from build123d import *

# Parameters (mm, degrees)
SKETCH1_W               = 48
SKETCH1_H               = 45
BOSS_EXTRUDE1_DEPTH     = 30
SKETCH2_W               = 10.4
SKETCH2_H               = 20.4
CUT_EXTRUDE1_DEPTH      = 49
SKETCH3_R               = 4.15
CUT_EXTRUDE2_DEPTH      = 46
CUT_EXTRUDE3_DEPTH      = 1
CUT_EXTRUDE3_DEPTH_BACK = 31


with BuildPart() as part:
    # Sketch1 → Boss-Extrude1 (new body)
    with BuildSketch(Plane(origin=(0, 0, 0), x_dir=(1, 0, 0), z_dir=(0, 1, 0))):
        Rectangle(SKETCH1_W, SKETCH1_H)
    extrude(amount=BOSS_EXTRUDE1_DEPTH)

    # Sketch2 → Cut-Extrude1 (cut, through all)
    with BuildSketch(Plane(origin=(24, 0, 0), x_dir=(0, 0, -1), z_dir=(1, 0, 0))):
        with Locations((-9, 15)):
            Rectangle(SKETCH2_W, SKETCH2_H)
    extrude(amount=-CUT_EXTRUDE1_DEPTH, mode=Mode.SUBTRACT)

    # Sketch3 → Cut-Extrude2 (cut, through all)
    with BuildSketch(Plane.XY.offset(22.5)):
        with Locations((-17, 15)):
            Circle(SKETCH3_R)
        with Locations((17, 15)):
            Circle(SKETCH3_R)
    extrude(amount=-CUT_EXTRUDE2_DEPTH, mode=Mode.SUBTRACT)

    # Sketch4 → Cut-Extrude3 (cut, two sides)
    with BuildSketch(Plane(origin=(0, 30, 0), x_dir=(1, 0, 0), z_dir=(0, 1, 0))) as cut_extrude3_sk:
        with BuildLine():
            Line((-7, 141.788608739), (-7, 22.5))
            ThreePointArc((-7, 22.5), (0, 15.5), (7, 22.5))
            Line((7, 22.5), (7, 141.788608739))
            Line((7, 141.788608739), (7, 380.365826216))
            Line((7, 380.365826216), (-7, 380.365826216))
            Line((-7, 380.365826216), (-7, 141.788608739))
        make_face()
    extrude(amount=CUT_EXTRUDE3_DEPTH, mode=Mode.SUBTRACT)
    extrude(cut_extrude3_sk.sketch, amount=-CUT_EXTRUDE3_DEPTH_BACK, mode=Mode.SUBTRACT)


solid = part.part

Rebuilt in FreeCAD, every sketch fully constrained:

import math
import FreeCAD as App
import Part
import Sketcher

V = App.Vector
Q = App.Units.Quantity


def add_polygon(sketch, points):
    """Adds a closed chain of lines whose ends are joined by coincident constraints."""
    first, n = sketch.GeometryCount, len(points)
    for a, b in zip(points, points[1:] + points[:1]):
        sketch.addGeometry(Part.LineSegment(App.Vector(*a, 0), App.Vector(*b, 0)), False)
    for i in range(n):
        sketch.addConstraint(Sketcher.Constraint("Coincident", first + i, 2, first + (i + 1) % n, 1))

doc = App.newDocument("Part")
params = doc.addObject("Spreadsheet::Sheet", "Params")
for row, (alias, value) in enumerate([
    ("sketch1_width", "48 mm"),
    ("sketch1_height", "45 mm"),
    ("pad1_length", "30 mm"),
    ("sketch2_width", "20.4 mm"),
    ("sketch2_height", "10.4 mm"),
    ("sketch3_diameter", "8.3 mm"),
    ("sketch4_radius", "7 mm"),
], start=1):
    params.set(f"A{row}", alias)
    params.set(f"B{row}", "=" + value)
    params.setAlias(f"B{row}", alias)

body = doc.addObject("PartDesign::Body", "Body")

# Sketch on XZ plane
sketch1 = body.newObject("Sketcher::SketchObject", "Sketch")
sketch1.AttachmentSupport = (doc.getObject("XZ_Plane"), [""])
sketch1.MapMode = "FlatFace"
add_polygon(sketch1, [(-24, -22), (-24, 22), (24, 22), (24, -22)])  # lines 0-3
sketch1.addConstraint([
    Sketcher.Constraint("Vertical", 0),
    Sketcher.Constraint("Horizontal", 1),
    Sketcher.Constraint("Vertical", 2),
    Sketcher.Constraint("Horizontal", 3),
    Sketcher.Constraint("Symmetric", 0, 2, 2, 2, -1, 1),
    Sketcher.Constraint("DistanceX", 1, 1, 1, 2, Q("48 mm")),
    Sketcher.Constraint("DistanceY", 0, 1, 0, 2, Q("45 mm")),
])
sketch1.setExpression("Constraints[9]", "Params.sketch1_width")
sketch1.setExpression("Constraints[10]", "Params.sketch1_height")
pad1 = body.newObject("PartDesign::Pad", "Pad")
pad1.Profile = sketch1
pad1.setExpression("Length", "Params.pad1_length")
pad1.Reversed = True

# Sketch on YZ plane
sketch2 = body.newObject("Sketcher::SketchObject", "Sketch001")
sketch2.AttachmentSupport = (doc.getObject("YZ_Plane"), [""])
sketch2.MapMode = "FlatFace"
sketch2.AttachmentOffset = App.Placement(V(0, 0, 24), App.Rotation())
add_polygon(sketch2, [(25, 14), (5, 14), (5, 4), (25, 4)])  # lines 0-3
sketch2.addConstraint([
    Sketcher.Constraint("Horizontal", 0),
    Sketcher.Constraint("Vertical", 1),
    Sketcher.Constraint("Horizontal", 2),
    Sketcher.Constraint("Vertical", 3),
    Sketcher.Constraint("DistanceX", 0, 2, 0, 1, Q("20.4 mm")),
    Sketcher.Constraint("DistanceY", 1, 2, 1, 1, Q("10.4 mm")),
    Sketcher.Constraint("DistanceX", -1, 1, 0, 2, Q("4.8 mm")),
    Sketcher.Constraint("DistanceY", -1, 1, 0, 2, Q("14.2 mm")),
])
sketch2.setExpression("Constraints[8]", "Params.sketch2_width")
sketch2.setExpression("Constraints[9]", "Params.sketch2_height")
pocket1 = body.newObject("PartDesign::Pocket", "Pocket")
pocket1.Profile = sketch2
pocket1.Type = "ThroughAll"

# Sketch on XY plane
sketch3 = body.newObject("Sketcher::SketchObject", "Sketch002")
sketch3.AttachmentSupport = (doc.getObject("XY_Plane"), [""])
sketch3.MapMode = "FlatFace"
sketch3.AttachmentOffset = App.Placement(V(0, 0, 22.5), App.Rotation())
sketch3.addGeometry([
    Part.Circle(V(-17, 15, 0), V(0, 0, 1), 4.2),
    Part.Circle(V(17, 15, 0), V(0, 0, 1), 4.2),
], False)
sketch3.addConstraint([
    Sketcher.Constraint("Equal", 0, 1),
    Sketcher.Constraint("Symmetric", 0, 3, 1, 3, -2),
    Sketcher.Constraint("Diameter", 0, Q("8.3 mm")),
    Sketcher.Constraint("DistanceX", 0, 3, -1, 1, Q("17 mm")),
    Sketcher.Constraint("DistanceY", -1, 1, 0, 3, Q("15 mm")),
])
sketch3.setExpression("Constraints[2]", "Params.sketch3_diameter")
pocket2 = body.newObject("PartDesign::Pocket", "Pocket001")
pocket2.Profile = sketch3
pocket2.Type = "ThroughAll"

# Sketch on XZ plane
sketch4 = body.newObject("Sketcher::SketchObject", "Sketch003")
sketch4.AttachmentSupport = (doc.getObject("XZ_Plane"), [""])
sketch4.MapMode = "FlatFace"
sketch4.AttachmentOffset = App.Placement(V(0, 0, -30), App.Rotation())
sketch4.addGeometry([
    Part.ArcOfCircle(Part.Circle(V(0, -22, 0), V(0, 0, 1), 7), math.radians(0), math.radians(180)),
    Part.LineSegment(V(7, -22, 0), V(7, -380, 0)),
    Part.LineSegment(V(7, -380, 0), V(-7, -380, 0)),
    Part.LineSegment(V(-7, -380, 0), V(-7, -22, 0)),
], False)
sketch4.addConstraint([
    Sketcher.Constraint("Tangent", 0, 1, 1, 1),
    Sketcher.Constraint("Coincident", 1, 2, 2, 1),
    Sketcher.Constraint("Coincident", 2, 2, 3, 1),
    Sketcher.Constraint("Tangent", 3, 2, 0, 2),
    Sketcher.Constraint("Vertical", 1),
    Sketcher.Constraint("Horizontal", 2),
    Sketcher.Constraint("Vertical", 3),
    Sketcher.Constraint("PointOnObject", 0, 3, -2),
    Sketcher.Constraint("Radius", 0, Q("7 mm")),
    Sketcher.Constraint("DistanceY", 0, 3, -1, 1, Q("22.5 mm")),
    Sketcher.Constraint("DistanceY", 1, 2, 1, 1, Q("357.865826 mm")),
])
sketch4.setExpression("Constraints[8]", "Params.sketch4_radius")
pocket3 = body.newObject("PartDesign::Pocket", "Pocket002")
pocket3.Profile = sketch4
pocket3.Type = "ThroughAll"
pocket3.Midplane = True

doc.recompute()
